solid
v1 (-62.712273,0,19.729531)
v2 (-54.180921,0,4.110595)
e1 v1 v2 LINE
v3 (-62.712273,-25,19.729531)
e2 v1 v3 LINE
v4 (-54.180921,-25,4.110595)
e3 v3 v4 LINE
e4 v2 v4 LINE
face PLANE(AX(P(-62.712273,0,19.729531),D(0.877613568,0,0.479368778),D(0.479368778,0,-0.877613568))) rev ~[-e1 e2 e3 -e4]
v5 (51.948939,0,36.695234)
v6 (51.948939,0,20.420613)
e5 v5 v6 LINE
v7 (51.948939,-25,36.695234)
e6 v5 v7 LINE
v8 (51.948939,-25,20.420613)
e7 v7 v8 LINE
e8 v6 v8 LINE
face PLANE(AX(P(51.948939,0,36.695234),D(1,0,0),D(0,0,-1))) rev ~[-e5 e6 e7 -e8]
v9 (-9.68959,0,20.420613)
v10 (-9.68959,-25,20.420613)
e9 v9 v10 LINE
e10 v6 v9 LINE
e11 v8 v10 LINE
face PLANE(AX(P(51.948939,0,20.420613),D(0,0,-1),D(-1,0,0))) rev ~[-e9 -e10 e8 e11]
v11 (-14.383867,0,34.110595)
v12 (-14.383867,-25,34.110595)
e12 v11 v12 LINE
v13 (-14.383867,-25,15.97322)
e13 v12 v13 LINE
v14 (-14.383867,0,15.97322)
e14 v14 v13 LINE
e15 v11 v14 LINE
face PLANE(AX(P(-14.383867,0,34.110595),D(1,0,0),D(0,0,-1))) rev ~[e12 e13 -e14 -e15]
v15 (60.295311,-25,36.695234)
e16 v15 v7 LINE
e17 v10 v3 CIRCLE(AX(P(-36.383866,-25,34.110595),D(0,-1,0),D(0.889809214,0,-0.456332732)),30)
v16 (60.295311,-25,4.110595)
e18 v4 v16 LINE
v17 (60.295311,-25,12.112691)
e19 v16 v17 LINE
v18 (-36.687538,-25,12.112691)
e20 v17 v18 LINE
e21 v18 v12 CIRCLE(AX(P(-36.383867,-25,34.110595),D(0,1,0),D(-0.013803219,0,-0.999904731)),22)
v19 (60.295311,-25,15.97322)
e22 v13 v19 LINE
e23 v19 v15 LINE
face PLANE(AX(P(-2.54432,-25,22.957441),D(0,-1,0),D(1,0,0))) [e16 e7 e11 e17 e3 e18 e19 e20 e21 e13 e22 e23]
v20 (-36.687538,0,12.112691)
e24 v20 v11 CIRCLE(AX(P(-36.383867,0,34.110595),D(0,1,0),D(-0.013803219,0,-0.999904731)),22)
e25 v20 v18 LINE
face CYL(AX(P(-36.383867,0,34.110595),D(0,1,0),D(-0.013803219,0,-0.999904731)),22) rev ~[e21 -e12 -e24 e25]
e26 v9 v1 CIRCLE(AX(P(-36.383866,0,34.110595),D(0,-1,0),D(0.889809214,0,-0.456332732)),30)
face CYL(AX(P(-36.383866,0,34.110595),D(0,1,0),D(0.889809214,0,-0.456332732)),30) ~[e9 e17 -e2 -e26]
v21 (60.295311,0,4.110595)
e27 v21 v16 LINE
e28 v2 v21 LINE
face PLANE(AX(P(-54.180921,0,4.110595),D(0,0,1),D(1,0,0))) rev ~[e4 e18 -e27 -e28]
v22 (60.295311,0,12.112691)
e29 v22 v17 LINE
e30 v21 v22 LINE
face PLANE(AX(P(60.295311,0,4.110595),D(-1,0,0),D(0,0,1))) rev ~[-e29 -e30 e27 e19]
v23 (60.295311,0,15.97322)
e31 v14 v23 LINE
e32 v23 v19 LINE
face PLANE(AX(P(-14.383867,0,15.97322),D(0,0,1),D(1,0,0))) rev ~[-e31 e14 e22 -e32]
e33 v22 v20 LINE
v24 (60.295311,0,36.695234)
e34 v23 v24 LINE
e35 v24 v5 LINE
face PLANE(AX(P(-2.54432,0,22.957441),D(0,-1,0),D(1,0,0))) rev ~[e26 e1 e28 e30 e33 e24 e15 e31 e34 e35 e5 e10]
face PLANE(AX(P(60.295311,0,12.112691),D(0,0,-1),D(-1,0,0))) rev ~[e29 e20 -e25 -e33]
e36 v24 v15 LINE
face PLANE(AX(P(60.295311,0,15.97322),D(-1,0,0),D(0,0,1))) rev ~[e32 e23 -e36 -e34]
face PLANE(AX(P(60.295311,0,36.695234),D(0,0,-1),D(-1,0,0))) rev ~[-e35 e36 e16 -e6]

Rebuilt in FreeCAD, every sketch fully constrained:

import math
import FreeCAD as App
import Part
import Sketcher
Q = App.Units.Quantity

doc = App.newDocument("Part")
params = doc.addObject("Spreadsheet::Sheet", "Params")
for row, (alias, value) in enumerate([
    ("sketch1_radius", "30 mm"),
    ("sketch1_radius2", "22 mm"),
    ("pad1_length", "25 mm"),
], start=1):
    params.set(f"A{row}", alias)
    params.set(f"B{row}", "=" + value)
    params.setAlias(f"B{row}", alias)

body = doc.addObject("PartDesign::Body", "Body")

# Sketch on XZ plane
sketch1 = body.newObject("Sketcher::SketchObject", "Sketch")
sketch1.AttachmentSupport = (doc.getObject("XZ_Plane"), [""])
sketch1.MapMode = "FlatFace"
sketch1.addGeometry(Part.LineSegment(App.Vector(51.948939, 20.420613, 0), App.Vector(-9.68959, 20.420613, 0)), False)
sketch1.addGeometry(Part.ArcOfCircle(Part.Circle(App.Vector(-36.383866, 34.110595, 0), App.Vector(0, 0, 1), 30), math.radians(-27.150717), math.radians(208.644185)), False)
sketch1.addGeometry(Part.LineSegment(App.Vector(-62.712273, 19.729531, 0), App.Vector(-54.180921, 4.110595, 0)), False)
sketch1.addGeometry(Part.LineSegment(App.Vector(-54.180921, 4.110595, 0), App.Vector(60.295311, 4.110595, 0)), False)
sketch1.addGeometry(Part.LineSegment(App.Vector(60.295311, 4.110595, 0), App.Vector(60.295311, 12.112691, 0)), False)
sketch1.addGeometry(Part.LineSegment(App.Vector(60.295311, 12.112691, 0), App.Vector(-36.687538, 12.112691, 0)), False)
sketch1.addGeometry(Part.ArcOfCircle(Part.Circle(App.Vector(-36.383867, 34.110595, 0), App.Vector(0, 0, 1), 22), math.radians(-0.000001), math.radians(269.209109)), False)
sketch1.addGeometry(Part.LineSegment(App.Vector(-14.383867, 34.110595, 0), App.Vector(-14.383867, 15.97322, 0)), False)
sketch1.addGeometry(Part.LineSegment(App.Vector(-14.383867, 15.97322, 0), App.Vector(60.295311, 15.97322, 0)), False)
sketch1.addGeometry(Part.LineSegment(App.Vector(60.295311, 15.97322, 0), App.Vector(60.295311, 36.695234, 0)), False)
sketch1.addGeometry(Part.LineSegment(App.Vector(60.295311, 36.695234, 0), App.Vector(51.948939, 36.695234, 0)), False)
sketch1.addGeometry(Part.LineSegment(App.Vector(51.948939, 36.695234, 0), App.Vector(51.948939, 20.420613, 0)), False)
sketch1.addConstraint(Sketcher.Constraint("Coincident", 0, 2, 1, 1))
sketch1.addConstraint(Sketcher.Constraint("Tangent", 1, 2, 2, 1))
sketch1.addConstraint(Sketcher.Constraint("Coincident", 2, 2, 3, 1))
sketch1.addConstraint(Sketcher.Constraint("Coincident", 3, 2, 4, 1))
sketch1.addConstraint(Sketcher.Constraint("Coincident", 4, 2, 5, 1))
sketch1.addConstraint(Sketcher.Constraint("Coincident", 5, 2, 6, 2))
sketch1.addConstraint(Sketcher.Constraint("Tangent", 6, 1, 7, 1))
sketch1.addConstraint(Sketcher.Constraint("Coincident", 7, 2, 8, 1))
sketch1.addConstraint(Sketcher.Constraint("Coincident", 8, 2, 9, 1))
sketch1.addConstraint(Sketcher.Constraint("Coincident", 9, 2, 10, 1))
sketch1.addConstraint(Sketcher.Constraint("Coincident", 10, 2, 11, 1))
sketch1.addConstraint(Sketcher.Constraint("Coincident", 11, 2, 0, 1))
sketch1.addConstraint(Sketcher.Constraint("Horizontal", 0))
sketch1.addConstraint(Sketcher.Constraint("Horizontal", 3))
sketch1.addConstraint(Sketcher.Constraint("Vertical", 4))
sketch1.addConstraint(Sketcher.Constraint("Horizontal", 5))
sketch1.addConstraint(Sketcher.Constraint("Vertical", 7))
sketch1.addConstraint(Sketcher.Constraint("Horizontal", 8))
sketch1.addConstraint(Sketcher.Constraint("Vertical", 9))
sketch1.addConstraint(Sketcher.Constraint("Horizontal", 10))
sketch1.addConstraint(Sketcher.Constraint("Vertical", 11))
sketch1.addConstraint(Sketcher.Constraint("Coincident", 6, 3, 1, 3))
sketch1.addConstraint(Sketcher.Constraint("Vertical", 4, 2, 8, 2))
sketch1.addConstraint(Sketcher.Constraint("Radius", 1, Q("30 mm")))
sketch1.addConstraint(Sketcher.Constraint("Radius", 6, Q("22 mm")))
sketch1.addConstraint(Sketcher.Constraint("DistanceY", 2, 2, 6, 3, Q("30 mm")))
sketch1.addConstraint(Sketcher.Constraint("DistanceX", 0, 2, 0, 1, Q("61.638529 mm")))
sketch1.addConstraint(Sketcher.Constraint("DistanceX", 3, 1, 3, 2, Q("114.476232 mm")))
sketch1.addConstraint(Sketcher.Constraint("DistanceX", 5, 2, 5, 1, Q("96.982849 mm")))
sketch1.addConstraint(Sketcher.Constraint("DistanceX", 10, 2, 10, 1, Q("8.346372 mm")))
sketch1.addConstraint(Sketcher.Constraint("DistanceY", 11, 2, 11, 1, Q("16.274621 mm")))
sketch1.addConstraint(Sketcher.Constraint("DistanceX", 8, 1, 8, 2, Q("74.679178 mm")))
sketch1.addConstraint(Sketcher.Constraint("DistanceY", 7, 2, 7, 1, Q("18.137375 mm")))
sketch1.addConstraint(Sketcher.Constraint("DistanceX", 0, 2, -1, 1, Q("9.68959 mm")))
sketch1.addConstraint(Sketcher.Constraint("DistanceY", -1, 1, 1, 2, Q("19.729531 mm")))
sketch1.setExpression("Constraints[23]", "Params.sketch1_radius")
sketch1.setExpression("Constraints[24]", "Params.sketch1_radius2")
pad1 = body.newObject("PartDesign::Pad", "Pad")
pad1.Profile = sketch1
pad1.setExpression("Length", "Params.pad1_length")

doc.recompute()
